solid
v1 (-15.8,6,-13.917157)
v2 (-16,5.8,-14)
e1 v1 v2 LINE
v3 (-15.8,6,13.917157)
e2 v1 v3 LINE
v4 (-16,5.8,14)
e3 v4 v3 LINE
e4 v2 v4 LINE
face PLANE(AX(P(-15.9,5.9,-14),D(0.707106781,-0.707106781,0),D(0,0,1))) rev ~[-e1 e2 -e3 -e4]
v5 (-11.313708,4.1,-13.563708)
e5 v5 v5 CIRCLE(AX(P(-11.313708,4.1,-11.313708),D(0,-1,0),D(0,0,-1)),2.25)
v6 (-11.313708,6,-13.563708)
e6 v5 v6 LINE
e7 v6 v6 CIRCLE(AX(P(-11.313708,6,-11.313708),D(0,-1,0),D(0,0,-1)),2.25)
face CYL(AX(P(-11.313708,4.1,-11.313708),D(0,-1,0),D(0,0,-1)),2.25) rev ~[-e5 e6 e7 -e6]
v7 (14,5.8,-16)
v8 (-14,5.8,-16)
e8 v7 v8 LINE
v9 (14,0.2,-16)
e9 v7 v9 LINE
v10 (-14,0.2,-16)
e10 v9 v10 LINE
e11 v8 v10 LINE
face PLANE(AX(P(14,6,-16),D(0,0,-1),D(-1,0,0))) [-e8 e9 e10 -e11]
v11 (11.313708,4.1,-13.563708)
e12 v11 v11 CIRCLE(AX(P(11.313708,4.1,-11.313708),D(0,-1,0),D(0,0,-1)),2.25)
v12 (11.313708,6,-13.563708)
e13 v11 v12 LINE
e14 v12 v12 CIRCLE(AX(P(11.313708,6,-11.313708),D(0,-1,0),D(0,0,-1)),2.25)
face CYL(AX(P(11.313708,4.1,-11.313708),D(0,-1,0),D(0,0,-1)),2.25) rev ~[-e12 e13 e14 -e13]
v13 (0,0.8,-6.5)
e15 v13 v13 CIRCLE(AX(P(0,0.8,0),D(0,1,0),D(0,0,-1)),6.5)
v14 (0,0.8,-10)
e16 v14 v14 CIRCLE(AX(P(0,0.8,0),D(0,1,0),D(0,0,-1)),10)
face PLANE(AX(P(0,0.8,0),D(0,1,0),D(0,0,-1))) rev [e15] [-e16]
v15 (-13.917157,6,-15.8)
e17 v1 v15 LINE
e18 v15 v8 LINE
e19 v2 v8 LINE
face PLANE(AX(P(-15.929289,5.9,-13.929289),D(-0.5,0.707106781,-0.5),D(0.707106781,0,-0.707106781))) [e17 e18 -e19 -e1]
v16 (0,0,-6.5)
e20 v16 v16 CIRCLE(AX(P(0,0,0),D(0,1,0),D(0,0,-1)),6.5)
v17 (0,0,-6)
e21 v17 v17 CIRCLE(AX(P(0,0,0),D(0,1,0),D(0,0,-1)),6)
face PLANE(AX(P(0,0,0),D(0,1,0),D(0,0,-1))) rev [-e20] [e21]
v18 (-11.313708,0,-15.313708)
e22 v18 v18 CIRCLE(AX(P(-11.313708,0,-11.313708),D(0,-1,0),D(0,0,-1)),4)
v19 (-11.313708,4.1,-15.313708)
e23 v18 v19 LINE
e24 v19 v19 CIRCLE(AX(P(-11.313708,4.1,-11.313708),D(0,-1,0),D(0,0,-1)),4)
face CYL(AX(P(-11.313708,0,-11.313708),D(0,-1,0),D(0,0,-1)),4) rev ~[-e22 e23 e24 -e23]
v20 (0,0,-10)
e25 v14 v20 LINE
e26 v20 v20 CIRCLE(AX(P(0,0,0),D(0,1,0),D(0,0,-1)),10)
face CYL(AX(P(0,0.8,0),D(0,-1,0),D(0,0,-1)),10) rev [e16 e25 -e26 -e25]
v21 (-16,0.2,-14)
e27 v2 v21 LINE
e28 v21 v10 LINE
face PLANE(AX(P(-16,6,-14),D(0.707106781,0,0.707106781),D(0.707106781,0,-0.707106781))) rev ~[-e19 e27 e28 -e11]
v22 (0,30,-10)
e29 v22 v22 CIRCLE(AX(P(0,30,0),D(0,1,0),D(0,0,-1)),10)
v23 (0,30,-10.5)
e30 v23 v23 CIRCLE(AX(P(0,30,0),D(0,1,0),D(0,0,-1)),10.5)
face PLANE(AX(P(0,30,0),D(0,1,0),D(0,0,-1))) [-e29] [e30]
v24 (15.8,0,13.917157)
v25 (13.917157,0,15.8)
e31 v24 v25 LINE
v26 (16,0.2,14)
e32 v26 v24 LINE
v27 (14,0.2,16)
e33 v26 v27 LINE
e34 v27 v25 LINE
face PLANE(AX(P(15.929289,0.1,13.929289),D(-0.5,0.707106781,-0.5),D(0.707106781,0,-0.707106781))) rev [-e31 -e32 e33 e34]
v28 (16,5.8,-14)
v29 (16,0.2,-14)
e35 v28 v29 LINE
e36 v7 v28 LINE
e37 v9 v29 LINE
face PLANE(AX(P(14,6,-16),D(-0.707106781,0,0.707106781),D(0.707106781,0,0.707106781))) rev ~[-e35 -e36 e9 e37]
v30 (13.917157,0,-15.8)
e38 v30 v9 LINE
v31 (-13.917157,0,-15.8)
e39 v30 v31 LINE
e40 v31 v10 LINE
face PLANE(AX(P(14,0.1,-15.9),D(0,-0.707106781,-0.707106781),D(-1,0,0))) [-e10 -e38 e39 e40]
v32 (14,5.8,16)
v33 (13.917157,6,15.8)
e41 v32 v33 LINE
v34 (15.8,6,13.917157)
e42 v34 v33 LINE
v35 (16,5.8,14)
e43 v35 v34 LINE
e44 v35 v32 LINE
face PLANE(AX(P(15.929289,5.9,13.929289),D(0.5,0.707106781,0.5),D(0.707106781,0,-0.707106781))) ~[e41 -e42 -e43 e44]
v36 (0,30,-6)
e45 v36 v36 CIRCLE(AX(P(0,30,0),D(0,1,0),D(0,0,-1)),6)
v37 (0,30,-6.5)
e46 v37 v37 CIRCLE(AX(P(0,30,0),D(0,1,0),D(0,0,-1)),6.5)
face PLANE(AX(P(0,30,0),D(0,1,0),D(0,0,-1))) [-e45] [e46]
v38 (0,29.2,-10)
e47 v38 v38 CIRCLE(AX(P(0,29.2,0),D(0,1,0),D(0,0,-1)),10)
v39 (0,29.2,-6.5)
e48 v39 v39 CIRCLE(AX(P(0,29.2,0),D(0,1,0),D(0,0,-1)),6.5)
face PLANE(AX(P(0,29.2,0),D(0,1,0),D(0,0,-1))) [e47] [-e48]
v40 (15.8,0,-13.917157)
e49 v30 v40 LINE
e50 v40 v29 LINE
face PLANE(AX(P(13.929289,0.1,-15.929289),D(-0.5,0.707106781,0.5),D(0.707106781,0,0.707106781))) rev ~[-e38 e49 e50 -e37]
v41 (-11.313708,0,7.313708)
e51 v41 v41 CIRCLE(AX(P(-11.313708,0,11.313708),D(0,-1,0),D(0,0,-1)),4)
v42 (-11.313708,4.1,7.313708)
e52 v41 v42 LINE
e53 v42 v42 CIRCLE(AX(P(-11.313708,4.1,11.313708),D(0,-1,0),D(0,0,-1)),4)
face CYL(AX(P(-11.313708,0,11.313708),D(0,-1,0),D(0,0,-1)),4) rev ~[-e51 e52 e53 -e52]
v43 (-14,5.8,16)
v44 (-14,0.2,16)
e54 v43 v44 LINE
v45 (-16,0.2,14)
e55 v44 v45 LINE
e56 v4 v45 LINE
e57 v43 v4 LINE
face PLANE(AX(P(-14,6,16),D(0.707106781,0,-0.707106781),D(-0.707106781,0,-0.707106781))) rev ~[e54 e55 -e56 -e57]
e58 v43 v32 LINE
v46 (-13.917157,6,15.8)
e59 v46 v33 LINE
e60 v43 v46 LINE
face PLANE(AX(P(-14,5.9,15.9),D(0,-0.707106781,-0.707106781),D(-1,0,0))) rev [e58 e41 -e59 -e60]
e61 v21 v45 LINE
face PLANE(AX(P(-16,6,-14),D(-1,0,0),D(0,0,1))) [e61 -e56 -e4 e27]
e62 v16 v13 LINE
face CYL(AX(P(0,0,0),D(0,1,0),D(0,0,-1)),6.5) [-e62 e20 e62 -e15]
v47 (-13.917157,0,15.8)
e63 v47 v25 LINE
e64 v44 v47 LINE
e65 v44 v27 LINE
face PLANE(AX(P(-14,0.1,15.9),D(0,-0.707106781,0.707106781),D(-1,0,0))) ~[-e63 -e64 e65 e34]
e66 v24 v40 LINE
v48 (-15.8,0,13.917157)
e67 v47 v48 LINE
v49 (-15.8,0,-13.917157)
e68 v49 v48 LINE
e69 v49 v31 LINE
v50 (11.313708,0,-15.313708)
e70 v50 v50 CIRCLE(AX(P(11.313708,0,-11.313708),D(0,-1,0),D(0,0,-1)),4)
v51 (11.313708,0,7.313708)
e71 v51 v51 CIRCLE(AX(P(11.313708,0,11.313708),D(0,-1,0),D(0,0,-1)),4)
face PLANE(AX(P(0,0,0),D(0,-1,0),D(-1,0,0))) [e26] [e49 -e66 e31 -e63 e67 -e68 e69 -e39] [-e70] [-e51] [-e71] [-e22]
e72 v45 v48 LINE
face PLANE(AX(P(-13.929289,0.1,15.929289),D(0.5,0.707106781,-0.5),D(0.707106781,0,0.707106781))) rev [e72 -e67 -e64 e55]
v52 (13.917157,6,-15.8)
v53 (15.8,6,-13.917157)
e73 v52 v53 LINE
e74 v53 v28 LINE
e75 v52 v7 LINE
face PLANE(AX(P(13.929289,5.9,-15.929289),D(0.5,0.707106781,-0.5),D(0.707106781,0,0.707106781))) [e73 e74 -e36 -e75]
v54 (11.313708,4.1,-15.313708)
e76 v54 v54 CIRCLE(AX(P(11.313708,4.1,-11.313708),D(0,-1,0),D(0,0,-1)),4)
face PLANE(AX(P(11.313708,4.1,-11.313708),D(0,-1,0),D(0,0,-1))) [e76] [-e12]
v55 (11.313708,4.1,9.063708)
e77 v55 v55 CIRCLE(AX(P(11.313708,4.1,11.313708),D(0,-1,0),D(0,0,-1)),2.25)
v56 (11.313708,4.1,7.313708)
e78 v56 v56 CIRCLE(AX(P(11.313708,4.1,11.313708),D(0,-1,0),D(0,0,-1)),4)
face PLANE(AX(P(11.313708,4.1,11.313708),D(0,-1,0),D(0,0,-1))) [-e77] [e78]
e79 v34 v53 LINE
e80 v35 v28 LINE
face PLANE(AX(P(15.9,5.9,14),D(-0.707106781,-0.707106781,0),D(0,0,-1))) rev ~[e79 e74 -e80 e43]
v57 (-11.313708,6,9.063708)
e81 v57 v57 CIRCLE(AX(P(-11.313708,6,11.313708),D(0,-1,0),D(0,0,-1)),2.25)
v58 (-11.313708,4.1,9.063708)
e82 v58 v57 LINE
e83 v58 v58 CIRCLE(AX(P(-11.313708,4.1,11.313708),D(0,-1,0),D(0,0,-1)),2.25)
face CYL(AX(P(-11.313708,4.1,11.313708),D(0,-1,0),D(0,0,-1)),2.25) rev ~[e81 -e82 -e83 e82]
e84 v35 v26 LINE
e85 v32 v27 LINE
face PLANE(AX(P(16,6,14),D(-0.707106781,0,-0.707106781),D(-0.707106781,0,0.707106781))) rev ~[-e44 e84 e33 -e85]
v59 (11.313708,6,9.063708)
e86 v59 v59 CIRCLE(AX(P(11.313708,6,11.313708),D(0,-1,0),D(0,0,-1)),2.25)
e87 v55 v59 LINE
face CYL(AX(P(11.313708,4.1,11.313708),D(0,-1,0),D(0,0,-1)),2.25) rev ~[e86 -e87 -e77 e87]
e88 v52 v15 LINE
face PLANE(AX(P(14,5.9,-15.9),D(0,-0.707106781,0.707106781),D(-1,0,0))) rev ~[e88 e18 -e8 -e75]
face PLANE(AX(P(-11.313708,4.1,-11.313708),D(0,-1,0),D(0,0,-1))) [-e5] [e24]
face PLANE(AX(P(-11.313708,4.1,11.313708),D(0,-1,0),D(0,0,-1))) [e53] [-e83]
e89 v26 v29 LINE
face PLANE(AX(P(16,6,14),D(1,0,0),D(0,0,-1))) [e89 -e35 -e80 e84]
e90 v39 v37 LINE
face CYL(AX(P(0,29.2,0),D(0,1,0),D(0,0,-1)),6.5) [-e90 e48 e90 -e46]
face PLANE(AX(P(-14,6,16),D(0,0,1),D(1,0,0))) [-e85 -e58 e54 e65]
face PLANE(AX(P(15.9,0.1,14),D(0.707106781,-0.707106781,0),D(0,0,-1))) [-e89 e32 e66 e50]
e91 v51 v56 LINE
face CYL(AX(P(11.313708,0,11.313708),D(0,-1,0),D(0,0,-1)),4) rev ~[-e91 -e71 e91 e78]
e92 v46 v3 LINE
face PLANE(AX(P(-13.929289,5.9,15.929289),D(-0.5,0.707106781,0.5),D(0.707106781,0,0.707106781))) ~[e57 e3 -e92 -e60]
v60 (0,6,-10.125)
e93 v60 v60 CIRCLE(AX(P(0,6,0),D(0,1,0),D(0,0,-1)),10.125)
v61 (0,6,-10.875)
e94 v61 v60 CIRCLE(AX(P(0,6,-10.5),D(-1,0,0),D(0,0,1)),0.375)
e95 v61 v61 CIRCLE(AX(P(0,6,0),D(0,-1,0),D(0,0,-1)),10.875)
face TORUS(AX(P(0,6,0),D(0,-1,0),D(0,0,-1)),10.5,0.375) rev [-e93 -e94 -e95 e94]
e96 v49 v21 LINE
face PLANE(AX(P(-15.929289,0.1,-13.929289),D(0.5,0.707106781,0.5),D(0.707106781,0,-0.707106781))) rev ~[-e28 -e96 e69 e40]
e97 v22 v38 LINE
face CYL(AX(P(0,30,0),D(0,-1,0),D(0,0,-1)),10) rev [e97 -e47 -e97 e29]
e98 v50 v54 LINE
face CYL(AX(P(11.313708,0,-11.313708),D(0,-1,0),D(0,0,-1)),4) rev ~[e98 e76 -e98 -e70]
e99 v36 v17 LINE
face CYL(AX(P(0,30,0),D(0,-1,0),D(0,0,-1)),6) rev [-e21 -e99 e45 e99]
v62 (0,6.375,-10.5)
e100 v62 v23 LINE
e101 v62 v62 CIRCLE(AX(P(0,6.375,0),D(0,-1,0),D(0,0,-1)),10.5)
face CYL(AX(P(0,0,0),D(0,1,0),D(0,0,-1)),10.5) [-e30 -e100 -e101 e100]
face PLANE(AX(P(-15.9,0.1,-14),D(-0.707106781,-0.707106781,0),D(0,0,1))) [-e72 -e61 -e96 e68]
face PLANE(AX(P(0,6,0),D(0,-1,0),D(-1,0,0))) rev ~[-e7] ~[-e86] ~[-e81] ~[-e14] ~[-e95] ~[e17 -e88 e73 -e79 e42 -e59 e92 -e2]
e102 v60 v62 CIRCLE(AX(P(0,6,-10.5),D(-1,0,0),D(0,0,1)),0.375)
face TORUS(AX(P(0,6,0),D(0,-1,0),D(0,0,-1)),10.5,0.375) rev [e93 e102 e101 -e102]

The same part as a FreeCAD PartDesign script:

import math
import FreeCAD as App
import Part
import Sketcher
from FreeCAD import Vector


def edges_at(feature, points):
    """Names of the edges that pass closest to the given points."""
    edges = feature.Shape.Edges
    near = lambda p: min(range(len(edges)), key=lambda i: edges[i].distToShape(Part.Vertex(*p))[0])
    return sorted({f"Edge{near(p) + 1}" for p in points})


def add_polygon(sketch, points):
    """Adds a closed chain of lines whose ends are joined by coincident constraints."""
    first, n = sketch.GeometryCount, len(points)
    for a, b in zip(points, points[1:] + points[:1]):
        sketch.addGeometry(Part.LineSegment(App.Vector(*a, 0), App.Vector(*b, 0)), False)
    for i in range(n):
        sketch.addConstraint(Sketcher.Constraint("Coincident", first + i, 2, first + (i + 1) % n, 1))

doc = App.newDocument("Part")
body = doc.addObject("PartDesign::Body", "Body")

sketch1 = body.newObject("Sketcher::SketchObject", "Sketch")
sketch1.AttachmentSupport = (doc.getObject("YZ_Plane"), [""])
sketch1.MapMode = "FlatFace"
add_polygon(sketch1, [(30, -6.5), (30, -6), (0, -6), (0, -6.5), (0.8, -6.5), (0.8, -10), (0, -10), (0, -10.5), (30, -10.5), (30, -10), (29.2, -10), (29.2, -6.5)])
sketch1.addConstraint([
    Sketcher.Constraint("Vertical", 0),
    Sketcher.Constraint("Horizontal", 1),
    Sketcher.Constraint("Vertical", 2),
    Sketcher.Constraint("Horizontal", 3),
    Sketcher.Constraint("Vertical", 4),
    Sketcher.Constraint("Horizontal", 5),
    Sketcher.Constraint("Vertical", 6),
    Sketcher.Constraint("Horizontal", 7),
    Sketcher.Constraint("Vertical", 8),
    Sketcher.Constraint("Horizontal", 9),
    Sketcher.Constraint("Vertical", 10),
    Sketcher.Constraint("Horizontal", 11),
    Sketcher.Constraint("PointOnObject", 1, 2, -2),
    Sketcher.Constraint("PointOnObject", 5, 2, -2),
    Sketcher.Constraint("Horizontal", 5, 2, 8, 2),
    Sketcher.Constraint("Horizontal", 3, 2, 10, 2),
    Sketcher.Constraint("Vertical", 0, 2, 7, 2),
    Sketcher.Constraint("Equal", 5, 9),
    Sketcher.Constraint("Equal", 2, 6),
    Sketcher.Constraint("DistanceX", 1, 2, 1, 1, 30.0),
    Sketcher.Constraint("DistanceX", 3, 1, 3, 2, 0.8),
    Sketcher.Constraint("DistanceY", 0, 1, 0, 2, 0.5),
    Sketcher.Constraint("DistanceY", 4, 2, 4, 1, 3.5),
    Sketcher.Constraint("DistanceY", 0, 2, -1, 1, 6.0),
])
revolution = body.newObject("PartDesign::Revolution", "Revolution")
revolution.Profile = sketch1
revolution.ReferenceAxis = (sketch1, ["H_Axis"])
revolution.Angle = 360

sketch2 = body.newObject("Sketcher::SketchObject", "Sketch001")
sketch2.AttachmentSupport = (doc.getObject("XZ_Plane"), [""])
sketch2.MapMode = "FlatFace"
sketch2.AttachmentOffset = App.Placement(Vector(0, 0, -6), App.Rotation())
add_polygon(sketch2, [(-14, 16), (14, 16), (16, 14), (16, -14), (14, -16), (-14, -16), (-16, -14), (-16, 14)])
sketch2.addGeometry(Part.ArcOfCircle(Part.Circle(Vector(0, 0, 0), Vector(0, 0, 1), 10.5), math.radians(-180), math.radians(-90)), False)
sketch2.addGeometry(Part.ArcOfCircle(Part.Circle(Vector(0, 0, 0), Vector(0, 0, 1), 10.5), math.radians(-90), math.radians(0)), False)
sketch2.addGeometry(Part.ArcOfCircle(Part.Circle(Vector(0, 0, 0), Vector(0, 0, 1), 10.5), math.radians(0), math.radians(90)), False)
sketch2.addGeometry(Part.ArcOfCircle(Part.Circle(Vector(0, 0, 0), Vector(0, 0, 1), 10.5), math.radians(90), math.radians(180)), False)
sketch2.addConstraint([
    Sketcher.Constraint("Tangent", 8, 2, 9, 1),
    Sketcher.Constraint("Tangent", 9, 2, 10, 1),
    Sketcher.Constraint("Tangent", 10, 2, 11, 1),
    Sketcher.Constraint("Tangent", 11, 2, 8, 1),
    Sketcher.Constraint("Horizontal", 0),
    Sketcher.Constraint("Vertical", 2),
    Sketcher.Constraint("Horizontal", 4),
    Sketcher.Constraint("Vertical", 6),
    Sketcher.Constraint("Coincident", 8, 3, -1, 1),
    Sketcher.Constraint("Equal", 8, 9),
    Sketcher.Constraint("Symmetric", 0, 2, 4, 2, -1, 1),
    Sketcher.Constraint("Symmetric", 1, 2, 5, 2, -1, 1),
    Sketcher.Constraint("PointOnObject", 8, 2, -2),
    Sketcher.Constraint("PointOnObject", 9, 2, -1),
    Sketcher.Constraint("PointOnObject", 10, 2, -2),
    Sketcher.Constraint("PointOnObject", 11, 2, -1),
    Sketcher.Constraint("Perpendicular", 1, 3),
    Sketcher.Constraint("Perpendicular", 5, 7),
    Sketcher.Constraint("Horizontal", 2, 2, 5, 2),
    Sketcher.Constraint("Horizontal", 1, 2, 6, 2),
    Sketcher.Constraint("Vertical", 0, 2, 3, 2),
    Sketcher.Constraint("Equal", 4, 2),
    Sketcher.Constraint("Radius", 8, 10.5),
    Sketcher.Constraint("DistanceX", 0, 1, 0, 2, 28.0),
    Sketcher.Constraint("DistanceY", -1, 1, 0, 2, 16.0),
])
pad1 = body.newObject("PartDesign::Pad", "Pad")
pad1.Profile = sketch2
pad1.Length = 6

sketch3 = body.newObject("Sketcher::SketchObject", "Sketch002")
sketch3.AttachmentSupport = (doc.getObject("XZ_Plane"), [""])
sketch3.MapMode = "FlatFace"
sketch3.addGeometry([
    Part.Circle(Vector(-11.313708, 11.313708, 0), Vector(0, 0, 1), 4),
    Part.Circle(Vector(11.313708, 11.313708, 0), Vector(0, 0, 1), 4),
    Part.Circle(Vector(11.313708, -11.313708, 0), Vector(0, 0, 1), 4),
    Part.Circle(Vector(-11.313708, -11.313708, 0), Vector(0, 0, 1), 4),
], False)
sketch3.addConstraint([
    Sketcher.Constraint("Equal", 0, 1),
    Sketcher.Constraint("Equal", 1, 2),
    Sketcher.Constraint("Equal", 2, 3),
    Sketcher.Constraint("Symmetric", 0, 3, 2, 3, -1, 1),
    Sketcher.Constraint("Symmetric", 1, 3, 3, 3, -1, 1),
    Sketcher.Constraint("Symmetric", 0, 3, 1, 3, -2),
    Sketcher.Constraint("Diameter", 0, 8.0),
    Sketcher.Constraint("DistanceX", 0, 3, -1, 1, 11.313708),
    Sketcher.Constraint("DistanceY", -1, 1, 0, 3, 11.313708),
])
pocket1 = body.newObject("PartDesign::Pocket", "Pocket")
pocket1.Profile = sketch3
pocket1.Length = 4.1

sketch4 = body.newObject("Sketcher::SketchObject", "Sketch003")
sketch4.AttachmentSupport = (doc.getObject("XZ_Plane"), [""])
sketch4.MapMode = "FlatFace"
sketch4.AttachmentOffset = App.Placement(Vector(0, 0, -4.1), App.Rotation())
sketch4.addGeometry([
    Part.Circle(Vector(-11.313708, -11.313708, 0), Vector(0, 0, 1), 2.25),
    Part.Circle(Vector(-11.313708, 11.313708, 0), Vector(0, 0, 1), 2.25),
    Part.Circle(Vector(11.313708, 11.313708, 0), Vector(0, 0, 1), 2.25),
    Part.Circle(Vector(11.313708, -11.313708, 0), Vector(0, 0, 1), 2.25),
], False)
sketch4.addConstraint([
    Sketcher.Constraint("Equal", 0, 1),
    Sketcher.Constraint("Equal", 1, 2),
    Sketcher.Constraint("Equal", 2, 3),
    Sketcher.Constraint("Symmetric", 0, 3, 2, 3, -1, 1),
    Sketcher.Constraint("Symmetric", 1, 3, 3, 3, -1, 1),
    Sketcher.Constraint("Symmetric", 1, 3, 2, 3, -2),
    Sketcher.Constraint("Diameter", 0, 4.5),
    Sketcher.Constraint("DistanceX", 0, 3, -1, 1, 11.313708),
    Sketcher.Constraint("DistanceY", 0, 3, -1, 1, 11.313708),
])
pocket2 = body.newObject("PartDesign::Pocket", "Pocket001")
pocket2.Profile = sketch4
pocket2.Type = "ThroughAll"

sketch5 = body.newObject("Sketcher::SketchObject", "Sketch004")
sketch5.AttachmentSupport = (doc.getObject("YZ_Plane"), [""])
sketch5.MapMode = "FlatFace"
sketch5.addGeometry(Part.Circle(Vector(6, 10.5, 0), Vector(0, 0, 1), 0.375), False)
sketch5.addConstraint([
    Sketcher.Constraint("Diameter", 0, 0.75),
    Sketcher.Constraint("DistanceX", -1, 1, 0, 3, 6.0),
    Sketcher.Constraint("DistanceY", -1, 1, 0, 3, 10.5),
])
groove = body.newObject("PartDesign::Groove", "Groove")
groove.Profile = sketch5
groove.ReferenceAxis = (sketch5, ["H_Axis"])
groove.Angle = 360
doc.recompute()

chamfer = body.newObject("PartDesign::Chamfer", "Chamfer")
chamfer.Base = (groove, edges_at(groove, [
    (-15, 6, 15),
    (0, 6, 16),
    (15, 6, 15),
    (16, 6, 0),
    (15, 6, -15),
    (0, 6, -16),
    (-15, 6, -15),
    (-16, 6, 0),
    (-15, 0, 15),
    (0, 0, 16),
    (15, 0, 15),
    (16, 0, 0),
    (15, 0, -15),
    (0, 0, -16),
    (-15, 0, -15),
    (-16, 0, 0),
]))
chamfer.Size = 0.2

doc.recompute()
